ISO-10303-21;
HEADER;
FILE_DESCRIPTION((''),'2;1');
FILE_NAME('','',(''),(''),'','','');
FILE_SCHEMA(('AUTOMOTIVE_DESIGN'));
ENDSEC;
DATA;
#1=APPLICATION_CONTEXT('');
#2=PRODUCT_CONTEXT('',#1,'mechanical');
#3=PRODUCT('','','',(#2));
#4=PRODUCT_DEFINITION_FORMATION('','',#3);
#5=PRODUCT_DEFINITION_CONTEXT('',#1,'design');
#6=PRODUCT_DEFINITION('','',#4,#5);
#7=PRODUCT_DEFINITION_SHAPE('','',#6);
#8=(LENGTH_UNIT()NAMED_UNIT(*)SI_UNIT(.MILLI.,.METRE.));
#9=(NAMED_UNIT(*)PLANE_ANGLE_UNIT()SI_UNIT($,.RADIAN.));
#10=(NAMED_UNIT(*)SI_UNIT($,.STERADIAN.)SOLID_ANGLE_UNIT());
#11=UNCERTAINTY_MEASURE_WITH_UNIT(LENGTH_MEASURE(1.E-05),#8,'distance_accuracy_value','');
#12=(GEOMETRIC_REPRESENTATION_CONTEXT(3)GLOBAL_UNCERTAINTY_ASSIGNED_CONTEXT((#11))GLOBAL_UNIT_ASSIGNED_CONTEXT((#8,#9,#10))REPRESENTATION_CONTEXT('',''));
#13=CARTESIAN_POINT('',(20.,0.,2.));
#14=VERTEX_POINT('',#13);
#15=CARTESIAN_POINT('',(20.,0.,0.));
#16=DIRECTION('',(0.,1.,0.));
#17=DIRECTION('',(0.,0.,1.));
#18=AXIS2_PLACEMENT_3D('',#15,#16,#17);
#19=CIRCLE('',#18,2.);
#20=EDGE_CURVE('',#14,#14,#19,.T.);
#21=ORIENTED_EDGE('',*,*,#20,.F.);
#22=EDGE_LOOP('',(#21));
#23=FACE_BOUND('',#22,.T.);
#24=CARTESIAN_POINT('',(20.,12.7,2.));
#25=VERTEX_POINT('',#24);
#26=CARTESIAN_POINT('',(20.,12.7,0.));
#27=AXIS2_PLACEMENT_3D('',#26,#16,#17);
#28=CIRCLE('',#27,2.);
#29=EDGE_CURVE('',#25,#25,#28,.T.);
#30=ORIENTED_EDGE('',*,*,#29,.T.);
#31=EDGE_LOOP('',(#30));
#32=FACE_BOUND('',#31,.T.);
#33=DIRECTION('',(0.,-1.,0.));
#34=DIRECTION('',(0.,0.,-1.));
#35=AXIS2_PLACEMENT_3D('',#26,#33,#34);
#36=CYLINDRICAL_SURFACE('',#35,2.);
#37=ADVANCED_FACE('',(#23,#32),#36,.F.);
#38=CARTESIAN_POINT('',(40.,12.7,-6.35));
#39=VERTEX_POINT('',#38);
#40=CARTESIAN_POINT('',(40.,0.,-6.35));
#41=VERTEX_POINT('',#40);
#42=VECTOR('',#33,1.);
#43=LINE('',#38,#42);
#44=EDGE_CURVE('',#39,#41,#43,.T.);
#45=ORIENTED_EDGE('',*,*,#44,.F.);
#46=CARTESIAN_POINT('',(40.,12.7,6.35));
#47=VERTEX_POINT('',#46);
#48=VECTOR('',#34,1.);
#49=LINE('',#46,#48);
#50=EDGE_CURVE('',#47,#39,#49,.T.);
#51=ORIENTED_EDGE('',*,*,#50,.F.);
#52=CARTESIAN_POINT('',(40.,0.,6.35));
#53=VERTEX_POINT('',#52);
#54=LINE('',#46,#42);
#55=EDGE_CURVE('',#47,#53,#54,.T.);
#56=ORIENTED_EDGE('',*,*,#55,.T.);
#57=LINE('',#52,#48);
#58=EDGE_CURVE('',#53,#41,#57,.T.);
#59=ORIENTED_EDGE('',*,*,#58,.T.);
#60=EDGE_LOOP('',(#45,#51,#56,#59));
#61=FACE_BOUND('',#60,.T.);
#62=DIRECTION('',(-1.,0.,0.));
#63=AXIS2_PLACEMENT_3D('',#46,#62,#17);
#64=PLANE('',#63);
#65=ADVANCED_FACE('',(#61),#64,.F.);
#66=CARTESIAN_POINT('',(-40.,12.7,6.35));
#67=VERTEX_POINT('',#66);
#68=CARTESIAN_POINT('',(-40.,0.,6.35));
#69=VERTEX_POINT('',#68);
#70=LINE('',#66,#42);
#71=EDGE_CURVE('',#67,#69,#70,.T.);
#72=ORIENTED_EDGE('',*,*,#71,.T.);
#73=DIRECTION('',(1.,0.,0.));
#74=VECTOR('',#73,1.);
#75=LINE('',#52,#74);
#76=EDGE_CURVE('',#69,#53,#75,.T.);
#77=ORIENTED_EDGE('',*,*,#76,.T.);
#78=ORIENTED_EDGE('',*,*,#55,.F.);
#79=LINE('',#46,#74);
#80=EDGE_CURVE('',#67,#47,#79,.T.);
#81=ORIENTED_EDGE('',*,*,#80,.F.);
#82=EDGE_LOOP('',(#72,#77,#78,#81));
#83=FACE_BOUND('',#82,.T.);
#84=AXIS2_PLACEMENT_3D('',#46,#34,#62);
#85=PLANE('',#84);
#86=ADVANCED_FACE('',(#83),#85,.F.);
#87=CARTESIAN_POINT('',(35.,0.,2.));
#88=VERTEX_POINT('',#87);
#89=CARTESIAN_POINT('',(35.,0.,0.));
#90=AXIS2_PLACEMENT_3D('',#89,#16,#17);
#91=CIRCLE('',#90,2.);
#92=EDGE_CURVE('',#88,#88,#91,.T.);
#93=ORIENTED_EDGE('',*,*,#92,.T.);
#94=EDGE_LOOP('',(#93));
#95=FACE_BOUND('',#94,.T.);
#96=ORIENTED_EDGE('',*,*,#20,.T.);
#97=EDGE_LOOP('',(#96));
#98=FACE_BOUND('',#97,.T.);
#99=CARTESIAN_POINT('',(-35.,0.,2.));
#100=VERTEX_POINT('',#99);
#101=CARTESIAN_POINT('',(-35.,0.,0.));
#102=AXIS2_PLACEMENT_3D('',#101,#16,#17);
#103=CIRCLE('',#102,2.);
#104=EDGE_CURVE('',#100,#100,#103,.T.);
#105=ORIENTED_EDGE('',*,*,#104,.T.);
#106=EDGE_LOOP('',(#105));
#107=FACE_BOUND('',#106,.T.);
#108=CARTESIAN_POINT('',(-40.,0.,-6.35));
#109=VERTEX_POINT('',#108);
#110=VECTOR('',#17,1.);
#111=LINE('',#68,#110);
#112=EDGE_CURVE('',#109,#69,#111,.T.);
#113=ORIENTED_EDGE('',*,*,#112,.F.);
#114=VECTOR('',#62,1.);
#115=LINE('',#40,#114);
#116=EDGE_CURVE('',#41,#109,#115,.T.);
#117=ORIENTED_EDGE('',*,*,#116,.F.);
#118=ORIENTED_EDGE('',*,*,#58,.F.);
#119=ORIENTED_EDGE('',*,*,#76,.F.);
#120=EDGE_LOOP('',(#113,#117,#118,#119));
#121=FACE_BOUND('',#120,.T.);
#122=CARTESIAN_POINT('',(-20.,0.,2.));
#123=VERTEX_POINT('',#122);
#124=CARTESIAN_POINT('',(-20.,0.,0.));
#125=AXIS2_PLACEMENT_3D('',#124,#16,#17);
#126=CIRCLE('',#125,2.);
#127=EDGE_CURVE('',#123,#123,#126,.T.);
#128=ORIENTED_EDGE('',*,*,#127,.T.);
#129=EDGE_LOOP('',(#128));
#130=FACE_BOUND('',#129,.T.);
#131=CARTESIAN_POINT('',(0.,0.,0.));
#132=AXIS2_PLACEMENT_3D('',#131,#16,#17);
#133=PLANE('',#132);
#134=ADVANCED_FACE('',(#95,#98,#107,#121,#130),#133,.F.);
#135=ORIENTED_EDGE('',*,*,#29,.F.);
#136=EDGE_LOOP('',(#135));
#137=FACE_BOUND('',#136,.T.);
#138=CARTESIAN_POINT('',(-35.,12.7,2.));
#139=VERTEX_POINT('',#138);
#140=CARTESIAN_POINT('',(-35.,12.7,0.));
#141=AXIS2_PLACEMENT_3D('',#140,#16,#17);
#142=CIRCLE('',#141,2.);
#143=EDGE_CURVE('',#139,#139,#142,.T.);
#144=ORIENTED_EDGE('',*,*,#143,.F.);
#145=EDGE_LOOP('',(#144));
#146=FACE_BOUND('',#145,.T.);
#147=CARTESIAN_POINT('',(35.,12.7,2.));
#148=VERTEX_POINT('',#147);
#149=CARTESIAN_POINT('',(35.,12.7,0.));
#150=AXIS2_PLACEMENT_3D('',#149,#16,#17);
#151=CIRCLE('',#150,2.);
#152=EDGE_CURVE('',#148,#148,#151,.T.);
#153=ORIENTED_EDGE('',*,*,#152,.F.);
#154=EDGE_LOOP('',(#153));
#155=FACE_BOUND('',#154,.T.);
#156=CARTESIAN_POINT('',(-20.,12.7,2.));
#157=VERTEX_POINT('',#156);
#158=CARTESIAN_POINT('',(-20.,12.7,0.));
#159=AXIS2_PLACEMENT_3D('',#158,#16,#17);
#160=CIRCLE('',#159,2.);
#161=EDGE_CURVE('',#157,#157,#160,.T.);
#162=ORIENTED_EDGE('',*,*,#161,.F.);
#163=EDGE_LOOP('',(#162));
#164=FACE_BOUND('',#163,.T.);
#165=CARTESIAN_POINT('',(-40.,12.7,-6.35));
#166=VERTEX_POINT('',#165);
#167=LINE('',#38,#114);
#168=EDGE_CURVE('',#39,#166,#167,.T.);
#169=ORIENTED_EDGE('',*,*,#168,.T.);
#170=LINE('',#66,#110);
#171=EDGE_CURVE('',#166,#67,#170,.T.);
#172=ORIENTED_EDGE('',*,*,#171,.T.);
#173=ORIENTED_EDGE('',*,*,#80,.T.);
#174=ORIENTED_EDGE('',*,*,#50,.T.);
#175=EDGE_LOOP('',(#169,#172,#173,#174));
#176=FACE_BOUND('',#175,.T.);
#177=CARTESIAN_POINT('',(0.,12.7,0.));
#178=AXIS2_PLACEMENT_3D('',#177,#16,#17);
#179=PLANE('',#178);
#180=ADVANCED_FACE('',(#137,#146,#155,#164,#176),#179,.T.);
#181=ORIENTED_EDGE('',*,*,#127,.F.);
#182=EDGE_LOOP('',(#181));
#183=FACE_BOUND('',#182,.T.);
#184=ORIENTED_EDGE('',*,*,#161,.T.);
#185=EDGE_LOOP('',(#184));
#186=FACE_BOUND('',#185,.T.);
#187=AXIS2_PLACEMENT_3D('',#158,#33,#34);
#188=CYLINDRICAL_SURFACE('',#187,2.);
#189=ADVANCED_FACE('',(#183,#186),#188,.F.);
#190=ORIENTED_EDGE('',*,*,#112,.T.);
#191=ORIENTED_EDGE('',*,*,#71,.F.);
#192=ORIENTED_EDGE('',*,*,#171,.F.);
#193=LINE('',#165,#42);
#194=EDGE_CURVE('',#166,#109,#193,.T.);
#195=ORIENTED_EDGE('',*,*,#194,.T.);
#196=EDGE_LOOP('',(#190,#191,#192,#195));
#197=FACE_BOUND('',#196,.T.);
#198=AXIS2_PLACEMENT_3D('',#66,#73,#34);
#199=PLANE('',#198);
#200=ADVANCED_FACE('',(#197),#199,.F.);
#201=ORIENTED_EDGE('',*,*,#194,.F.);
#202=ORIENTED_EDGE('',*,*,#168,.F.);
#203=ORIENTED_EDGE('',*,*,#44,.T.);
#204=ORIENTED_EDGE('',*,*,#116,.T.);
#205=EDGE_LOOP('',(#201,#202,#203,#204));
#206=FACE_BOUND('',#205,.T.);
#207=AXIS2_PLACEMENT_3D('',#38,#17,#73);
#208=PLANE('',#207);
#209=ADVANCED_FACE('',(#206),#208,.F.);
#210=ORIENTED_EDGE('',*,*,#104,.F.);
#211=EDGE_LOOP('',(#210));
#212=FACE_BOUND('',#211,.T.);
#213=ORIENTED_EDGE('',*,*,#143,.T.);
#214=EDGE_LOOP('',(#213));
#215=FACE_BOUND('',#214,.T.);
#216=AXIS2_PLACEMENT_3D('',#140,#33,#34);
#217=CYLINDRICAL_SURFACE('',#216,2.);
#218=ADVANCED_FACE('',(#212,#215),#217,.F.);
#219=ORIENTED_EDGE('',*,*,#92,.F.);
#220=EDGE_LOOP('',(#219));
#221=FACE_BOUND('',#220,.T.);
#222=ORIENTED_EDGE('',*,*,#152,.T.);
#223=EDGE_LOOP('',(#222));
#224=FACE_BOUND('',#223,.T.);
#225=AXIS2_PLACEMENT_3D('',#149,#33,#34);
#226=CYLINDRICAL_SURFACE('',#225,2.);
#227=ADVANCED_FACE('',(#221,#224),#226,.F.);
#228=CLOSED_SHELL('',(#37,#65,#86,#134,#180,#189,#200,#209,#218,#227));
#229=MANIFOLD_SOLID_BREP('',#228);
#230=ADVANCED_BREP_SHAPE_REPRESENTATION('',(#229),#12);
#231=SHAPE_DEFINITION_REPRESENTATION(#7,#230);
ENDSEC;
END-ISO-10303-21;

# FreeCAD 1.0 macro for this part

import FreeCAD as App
import Part
import Sketcher
from FreeCAD import Vector


def add_polygon(sketch, points):
    """Adds a closed chain of lines whose ends are joined by coincident constraints."""
    first, n = sketch.GeometryCount, len(points)
    for a, b in zip(points, points[1:] + points[:1]):
        sketch.addGeometry(Part.LineSegment(App.Vector(*a, 0), App.Vector(*b, 0)), False)
    for i in range(n):
        sketch.addConstraint(Sketcher.Constraint("Coincident", first + i, 2, first + (i + 1) % n, 1))

doc = App.newDocument("Part")
body = doc.addObject("PartDesign::Body", "Body")

sketch1 = doc.addObject("Sketcher::SketchObject", "Sketch")
body.addObject(sketch1)
sketch1.AttachmentSupport = (doc.XZ_Plane, [""])
sketch1.MapMode = "FlatFace"
add_polygon(sketch1, [(-40, -6.3), (-40, 6.3), (40, 6.3), (40, -6.3)])
sketch1.addGeometry(Part.Circle(Vector(-35, 0, 0), Vector(0, 0, 1), 2), False)
sketch1.addGeometry(Part.Circle(Vector(-20, 0, 0), Vector(0, 0, 1), 2), False)
sketch1.addGeometry(Part.Circle(Vector(20, 0, 0), Vector(0, 0, 1), 2), False)
sketch1.addGeometry(Part.Circle(Vector(35, 0, 0), Vector(0, 0, 1), 2), False)
sketch1.addConstraint(Sketcher.Constraint("Vertical", 0))
sketch1.addConstraint(Sketcher.Constraint("Horizontal", 1))
sketch1.addConstraint(Sketcher.Constraint("Vertical", 2))
sketch1.addConstraint(Sketcher.Constraint("Horizontal", 3))
sketch1.addConstraint(Sketcher.Constraint("Equal", 4, 5))
sketch1.addConstraint(Sketcher.Constraint("Equal", 5, 6))
sketch1.addConstraint(Sketcher.Constraint("Equal", 6, 7))
sketch1.addConstraint(Sketcher.Constraint("Symmetric", 5, 3, 6, 3, -1, 1))
sketch1.addConstraint(Sketcher.Constraint("Symmetric", 4, 3, 7, 3, -1, 1))
sketch1.addConstraint(Sketcher.Constraint("Symmetric", 0, 2, 2, 2, -1, 1))
sketch1.addConstraint(Sketcher.Constraint("PointOnObject", 4, 3, -1))
sketch1.addConstraint(Sketcher.Constraint("PointOnObject", 5, 3, -1))
sketch1.addConstraint(Sketcher.Constraint("Diameter", 4, 4.0))
sketch1.addConstraint(Sketcher.Constraint("DistanceX", 1, 1, 1, 2, 80.0))
sketch1.addConstraint(Sketcher.Constraint("DistanceY", 0, 1, 0, 2, 12.7))
sketch1.addConstraint(Sketcher.Constraint("DistanceX", 4, 3, -1, 1, 35.0))
sketch1.addConstraint(Sketcher.Constraint("DistanceX", 5, 3, -1, 1, 20.0))
pad1 = doc.addObject("PartDesign::Pad", "Pad")
body.addObject(pad1)
pad1.Profile = sketch1
pad1.Length = 12.7
pad1.Reversed = True

doc.recompute()
